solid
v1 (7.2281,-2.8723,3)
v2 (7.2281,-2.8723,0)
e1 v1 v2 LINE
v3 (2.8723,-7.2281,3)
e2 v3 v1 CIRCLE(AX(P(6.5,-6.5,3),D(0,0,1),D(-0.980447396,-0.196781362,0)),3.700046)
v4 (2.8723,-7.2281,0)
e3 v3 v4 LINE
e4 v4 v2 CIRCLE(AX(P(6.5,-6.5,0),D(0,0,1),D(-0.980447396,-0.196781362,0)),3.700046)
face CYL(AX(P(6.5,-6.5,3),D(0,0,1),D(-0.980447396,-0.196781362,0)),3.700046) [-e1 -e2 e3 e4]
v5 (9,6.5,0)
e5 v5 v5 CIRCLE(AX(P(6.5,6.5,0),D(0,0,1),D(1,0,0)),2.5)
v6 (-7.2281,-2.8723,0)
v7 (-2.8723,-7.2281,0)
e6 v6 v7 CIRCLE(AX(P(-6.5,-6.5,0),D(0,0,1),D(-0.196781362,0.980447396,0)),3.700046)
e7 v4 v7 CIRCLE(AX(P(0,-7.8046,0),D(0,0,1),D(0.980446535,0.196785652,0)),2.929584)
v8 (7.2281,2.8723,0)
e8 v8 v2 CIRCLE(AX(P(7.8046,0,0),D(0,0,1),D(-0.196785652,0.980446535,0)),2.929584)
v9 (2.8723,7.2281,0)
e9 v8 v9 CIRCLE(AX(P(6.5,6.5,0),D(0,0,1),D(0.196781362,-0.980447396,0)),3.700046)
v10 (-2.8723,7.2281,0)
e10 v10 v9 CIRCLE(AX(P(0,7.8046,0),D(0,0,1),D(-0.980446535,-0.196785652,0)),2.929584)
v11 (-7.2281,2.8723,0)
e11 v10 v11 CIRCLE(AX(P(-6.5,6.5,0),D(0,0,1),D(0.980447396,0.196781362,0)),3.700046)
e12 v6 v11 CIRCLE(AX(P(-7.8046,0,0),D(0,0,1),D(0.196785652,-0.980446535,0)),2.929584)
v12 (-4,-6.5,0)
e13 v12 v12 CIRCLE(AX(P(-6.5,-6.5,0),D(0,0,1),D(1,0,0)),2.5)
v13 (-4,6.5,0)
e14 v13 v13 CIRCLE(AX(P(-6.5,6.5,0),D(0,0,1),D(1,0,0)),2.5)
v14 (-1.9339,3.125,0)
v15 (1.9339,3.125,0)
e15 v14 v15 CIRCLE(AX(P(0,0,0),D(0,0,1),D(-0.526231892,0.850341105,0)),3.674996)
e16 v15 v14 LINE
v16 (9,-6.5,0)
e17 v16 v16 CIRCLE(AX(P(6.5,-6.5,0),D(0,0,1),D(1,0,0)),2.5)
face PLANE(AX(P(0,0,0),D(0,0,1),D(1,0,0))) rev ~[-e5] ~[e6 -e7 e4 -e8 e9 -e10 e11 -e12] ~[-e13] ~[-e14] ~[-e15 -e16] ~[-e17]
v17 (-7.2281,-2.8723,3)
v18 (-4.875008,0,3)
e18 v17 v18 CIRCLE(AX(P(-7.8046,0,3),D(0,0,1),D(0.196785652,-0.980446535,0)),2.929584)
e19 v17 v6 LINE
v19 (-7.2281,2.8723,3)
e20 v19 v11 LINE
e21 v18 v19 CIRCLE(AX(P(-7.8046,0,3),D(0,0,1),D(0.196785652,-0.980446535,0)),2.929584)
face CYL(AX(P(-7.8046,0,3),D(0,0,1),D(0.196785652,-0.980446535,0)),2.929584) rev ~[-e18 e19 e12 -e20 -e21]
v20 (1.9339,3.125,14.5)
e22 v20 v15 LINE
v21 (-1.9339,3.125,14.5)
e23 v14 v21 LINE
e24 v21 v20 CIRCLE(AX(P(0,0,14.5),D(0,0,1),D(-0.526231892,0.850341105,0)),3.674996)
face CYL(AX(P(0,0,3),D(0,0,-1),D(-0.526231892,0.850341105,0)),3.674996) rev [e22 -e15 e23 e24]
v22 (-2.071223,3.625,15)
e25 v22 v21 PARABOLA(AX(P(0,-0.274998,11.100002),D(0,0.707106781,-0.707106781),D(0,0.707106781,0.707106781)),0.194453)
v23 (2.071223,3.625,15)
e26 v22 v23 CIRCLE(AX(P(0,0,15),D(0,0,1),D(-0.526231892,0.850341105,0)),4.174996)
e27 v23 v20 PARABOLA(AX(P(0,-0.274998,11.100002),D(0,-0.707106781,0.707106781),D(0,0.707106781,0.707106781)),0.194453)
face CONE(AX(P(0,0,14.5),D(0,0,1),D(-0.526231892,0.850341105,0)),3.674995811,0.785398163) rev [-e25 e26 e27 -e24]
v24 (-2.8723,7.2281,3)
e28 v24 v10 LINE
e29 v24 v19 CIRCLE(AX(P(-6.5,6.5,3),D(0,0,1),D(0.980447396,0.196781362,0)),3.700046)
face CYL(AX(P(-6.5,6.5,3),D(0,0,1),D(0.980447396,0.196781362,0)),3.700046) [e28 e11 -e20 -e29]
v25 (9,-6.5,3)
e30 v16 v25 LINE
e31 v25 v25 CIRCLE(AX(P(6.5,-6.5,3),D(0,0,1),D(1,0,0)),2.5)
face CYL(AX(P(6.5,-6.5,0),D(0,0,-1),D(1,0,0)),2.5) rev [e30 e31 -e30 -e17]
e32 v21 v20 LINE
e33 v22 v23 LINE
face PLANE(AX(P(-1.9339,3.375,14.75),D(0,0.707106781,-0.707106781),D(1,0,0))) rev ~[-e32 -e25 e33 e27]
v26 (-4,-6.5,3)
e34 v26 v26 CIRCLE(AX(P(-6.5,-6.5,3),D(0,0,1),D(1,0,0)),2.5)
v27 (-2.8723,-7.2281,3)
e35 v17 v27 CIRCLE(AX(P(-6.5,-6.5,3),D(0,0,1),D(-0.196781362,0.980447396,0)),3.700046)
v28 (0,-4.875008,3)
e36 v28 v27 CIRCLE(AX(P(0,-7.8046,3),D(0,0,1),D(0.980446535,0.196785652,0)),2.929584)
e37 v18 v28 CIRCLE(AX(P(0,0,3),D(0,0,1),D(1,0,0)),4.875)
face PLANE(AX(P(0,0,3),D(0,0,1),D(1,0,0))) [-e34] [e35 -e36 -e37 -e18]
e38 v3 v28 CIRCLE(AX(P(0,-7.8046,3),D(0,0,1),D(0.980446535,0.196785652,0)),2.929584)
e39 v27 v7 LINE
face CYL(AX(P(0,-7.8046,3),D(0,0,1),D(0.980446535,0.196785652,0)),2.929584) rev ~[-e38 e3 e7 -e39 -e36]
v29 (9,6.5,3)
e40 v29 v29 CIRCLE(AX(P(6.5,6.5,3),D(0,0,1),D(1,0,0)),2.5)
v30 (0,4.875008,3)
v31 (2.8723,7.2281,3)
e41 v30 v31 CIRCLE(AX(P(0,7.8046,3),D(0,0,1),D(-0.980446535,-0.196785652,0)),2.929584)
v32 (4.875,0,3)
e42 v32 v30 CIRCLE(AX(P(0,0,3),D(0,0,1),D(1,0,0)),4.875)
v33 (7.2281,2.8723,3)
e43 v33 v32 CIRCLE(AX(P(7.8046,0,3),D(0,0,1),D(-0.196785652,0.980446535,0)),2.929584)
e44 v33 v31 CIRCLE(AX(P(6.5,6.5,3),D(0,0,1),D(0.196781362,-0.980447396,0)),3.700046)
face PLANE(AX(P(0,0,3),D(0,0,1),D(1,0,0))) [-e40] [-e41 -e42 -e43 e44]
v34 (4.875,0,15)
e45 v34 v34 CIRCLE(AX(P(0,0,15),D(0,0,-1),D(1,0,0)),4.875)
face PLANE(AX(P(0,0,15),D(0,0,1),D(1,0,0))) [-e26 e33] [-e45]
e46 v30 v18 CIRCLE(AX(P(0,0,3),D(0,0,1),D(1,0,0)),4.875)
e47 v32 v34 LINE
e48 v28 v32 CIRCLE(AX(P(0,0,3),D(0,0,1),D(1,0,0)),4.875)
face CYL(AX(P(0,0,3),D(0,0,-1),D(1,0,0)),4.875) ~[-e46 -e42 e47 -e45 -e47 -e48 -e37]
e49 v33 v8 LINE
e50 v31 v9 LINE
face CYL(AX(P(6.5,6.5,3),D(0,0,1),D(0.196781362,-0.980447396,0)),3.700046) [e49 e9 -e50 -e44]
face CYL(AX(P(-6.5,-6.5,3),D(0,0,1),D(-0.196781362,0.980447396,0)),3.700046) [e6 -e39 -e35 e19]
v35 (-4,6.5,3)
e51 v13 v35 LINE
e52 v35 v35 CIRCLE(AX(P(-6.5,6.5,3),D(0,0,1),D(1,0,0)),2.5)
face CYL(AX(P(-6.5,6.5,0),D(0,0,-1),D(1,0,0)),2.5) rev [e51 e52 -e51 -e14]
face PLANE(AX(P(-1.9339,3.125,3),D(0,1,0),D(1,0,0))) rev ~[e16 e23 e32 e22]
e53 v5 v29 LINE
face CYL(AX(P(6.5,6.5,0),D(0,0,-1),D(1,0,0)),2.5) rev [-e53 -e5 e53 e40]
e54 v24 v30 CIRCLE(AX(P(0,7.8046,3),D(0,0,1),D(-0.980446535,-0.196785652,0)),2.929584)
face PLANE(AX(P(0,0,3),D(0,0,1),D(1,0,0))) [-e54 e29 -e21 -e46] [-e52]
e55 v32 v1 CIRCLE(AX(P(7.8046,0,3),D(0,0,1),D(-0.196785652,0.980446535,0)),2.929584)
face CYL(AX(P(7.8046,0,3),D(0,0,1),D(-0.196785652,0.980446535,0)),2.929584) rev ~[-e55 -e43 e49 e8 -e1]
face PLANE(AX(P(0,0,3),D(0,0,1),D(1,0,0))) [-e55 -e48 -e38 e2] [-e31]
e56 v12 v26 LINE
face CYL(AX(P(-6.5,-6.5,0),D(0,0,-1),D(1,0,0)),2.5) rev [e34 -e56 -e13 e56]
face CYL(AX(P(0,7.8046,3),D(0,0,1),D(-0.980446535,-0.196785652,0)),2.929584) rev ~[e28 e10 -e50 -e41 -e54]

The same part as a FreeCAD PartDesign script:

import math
import FreeCAD as App
import Part
import Sketcher

V = App.Vector
Q = App.Units.Quantity


def edges_at(feature, points):
    """Names of the edges that pass closest to the given points."""
    edges = feature.Shape.Edges
    near = lambda p: min(range(len(edges)), key=lambda i: edges[i].distToShape(Part.Vertex(*p))[0])
    return sorted({f"Edge{near(p) + 1}" for p in points})


def add_polygon(sketch, points):
    """Adds a closed chain of lines whose ends are joined by coincident constraints."""
    first, n = sketch.GeometryCount, len(points)
    for a, b in zip(points, points[1:] + points[:1]):
        sketch.addGeometry(Part.LineSegment(App.Vector(*a, 0), App.Vector(*b, 0)), False)
    for i in range(n):
        sketch.addConstraint(Sketcher.Constraint("Coincident", first + i, 2, first + (i + 1) % n, 1))

doc = App.newDocument("Part")
body = doc.addObject("PartDesign::Body", "Body")

# Sketch on XY plane
sketch1 = doc.addObject("Sketcher::SketchObject", "Sketch")
body.addObject(sketch1)
sketch1.AttachmentSupport = (doc.XY_Plane, [""])
sketch1.MapMode = "FlatFace"
add_polygon(sketch1, [(12.5, 12.5), (-12.5, 12.5), (-12.5, -12.5), (12.5, -12.5)])  # lines 0-3
sketch1.addGeometry(Part.Circle(V(-6.5, -6.5, 0), V(0, 0, 1), 2.5), False)  # 4
sketch1.addGeometry(Part.Circle(V(6.5, -6.5, 0), V(0, 0, 1), 2.5), False)  # 5
sketch1.addGeometry(Part.LineSegment(V(-1.9, 3.1, 0), V(1.9, 3.1, 0)), False)  # 6
sketch1.addGeometry(Part.ArcOfCircle(Part.Circle(V(0, 0, 0), V(0, 0, 1), 3.7), math.radians(122), math.radians(418)), False)  # 7
sketch1.addGeometry(Part.Circle(V(-6.5, 6.5, 0), V(0, 0, 1), 2.5), False)  # 8
sketch1.addGeometry(Part.Circle(V(6.5, 6.5, 0), V(0, 0, 1), 2.5), False)  # 9
sketch1.addConstraint([
    Sketcher.Constraint("Coincident", 6, 1, 7, 1),
    Sketcher.Constraint("Coincident", 7, 2, 6, 2),
    Sketcher.Constraint("Horizontal", 0),
    Sketcher.Constraint("Vertical", 1),
    Sketcher.Constraint("Horizontal", 2),
    Sketcher.Constraint("Vertical", 3),
    Sketcher.Constraint("Horizontal", 6),
    Sketcher.Constraint("Coincident", 7, 3, -1, 1),
    Sketcher.Constraint("Equal", 4, 5),
    Sketcher.Constraint("Equal", 5, 8),
    Sketcher.Constraint("Equal", 8, 9),
    Sketcher.Constraint("Symmetric", 5, 3, 8, 3, -1, 1),
    Sketcher.Constraint("Symmetric", 4, 3, 9, 3, -1, 1),
    Sketcher.Constraint("Symmetric", 0, 2, 2, 2, -1, 1),
    Sketcher.Constraint("Symmetric", 4, 3, 5, 3, -2),
    Sketcher.Constraint("Equal", 2, 1),
    Sketcher.Constraint("Diameter", 4, Q("5 mm")),
    Sketcher.Constraint("DistanceX", 0, 2, 0, 1, Q("25 mm")),
    Sketcher.Constraint("DistanceX", 4, 3, 5, 3, Q("13 mm")),
    Sketcher.Constraint("DistanceY", 4, 3, 8, 3, Q("13 mm")),
    Sketcher.Constraint("Radius", 7, Q("3.675 mm")),
    Sketcher.Constraint("DistanceX", 6, 1, 6, 2, Q("3.8678 mm")),
])
pad1 = doc.addObject("PartDesign::Pad", "Pad")
body.addObject(pad1)
pad1.Profile = sketch1
pad1.Length = 3

# Sketch on XY plane
sketch2 = doc.addObject("Sketcher::SketchObject", "Sketch001")
body.addObject(sketch2)
sketch2.AttachmentSupport = (doc.XY_Plane, [""])
sketch2.MapMode = "FlatFace"
sketch2.AttachmentOffset = App.Placement(V(0, 0, 3), App.Rotation())
add_polygon(sketch2, [(12.5, -12.5), (12.5, 12.5), (-12.5, 12.5), (-12.5, -12.5)])  # lines 0-3
sketch2.addGeometry(Part.ArcOfCircle(Part.Circle(V(-6.5, 6.5, 0), V(0, 0, 1), 3.7), math.radians(11), math.radians(259)), False)  # 4
sketch2.addGeometry(Part.ArcOfCircle(Part.Circle(V(0, 7.8, 0), V(0, 0, 1), 2.9), math.radians(-169), math.radians(-11)), False)  # 5
sketch2.addGeometry(Part.ArcOfCircle(Part.Circle(V(6.5, 6.5, 0), V(0, 0, 1), 3.7), math.radians(-79), math.radians(169)), False)  # 6
sketch2.addGeometry(Part.ArcOfCircle(Part.Circle(V(7.8, 0, 0), V(0, 0, 1), 2.9), math.radians(101), math.radians(259)), False)  # 7
sketch2.addGeometry(Part.ArcOfCircle(Part.Circle(V(6.5, -6.5, 0), V(0, 0, 1), 3.7), math.radians(-169), math.radians(79)), False)  # 8
sketch2.addGeometry(Part.ArcOfCircle(Part.Circle(V(0, -7.8, 0), V(0, 0, 1), 2.9), math.radians(11), math.radians(169)), False)  # 9
sketch2.addGeometry(Part.ArcOfCircle(Part.Circle(V(-6.5, -6.5, 0), V(0, 0, 1), 3.7), math.radians(101), math.radians(349)), False)  # 10
sketch2.addGeometry(Part.ArcOfCircle(Part.Circle(V(-7.8, 0, 0), V(0, 0, 1), 2.9), math.radians(-79), math.radians(79)), False)  # 11
sketch2.addConstraint([
    Sketcher.Constraint("Tangent", 4, 1, 5, 1),
    Sketcher.Constraint("Tangent", 5, 2, 6, 2),
    Sketcher.Constraint("Tangent", 6, 1, 7, 1),
    Sketcher.Constraint("Tangent", 7, 2, 8, 2),
    Sketcher.Constraint("Tangent", 8, 1, 9, 1),
    Sketcher.Constraint("Tangent", 9, 2, 10, 2),
    Sketcher.Constraint("Tangent", 10, 1, 11, 1),
    Sketcher.Constraint("Tangent", 11, 2, 4, 2),
    Sketcher.Constraint("Vertical", 0),
    Sketcher.Constraint("Horizontal", 1),
    Sketcher.Constraint("Vertical", 2),
    Sketcher.Constraint("Horizontal", 3),
    Sketcher.Constraint("Equal", 4, 6),
    Sketcher.Constraint("Equal", 5, 7),
    Sketcher.Constraint("Equal", 6, 8),
    Sketcher.Constraint("Equal", 7, 9),
    Sketcher.Constraint("Equal", 8, 10),
    Sketcher.Constraint("Equal", 9, 11),
    Sketcher.Constraint("Symmetric", 4, 3, 8, 3, -1, 1),
    Sketcher.Constraint("Symmetric", 6, 3, 10, 3, -1, 1),
    Sketcher.Constraint("Symmetric", 0, 2, 2, 2, -1, 1),
    Sketcher.Constraint("Symmetric", 4, 3, 6, 3, -2),
    Sketcher.Constraint("Equal", 3, 0),
    Sketcher.Constraint("Radius", 4, Q("3.7 mm")),
    Sketcher.Constraint("DistanceX", 1, 2, 1, 1, Q("25 mm")),
    Sketcher.Constraint("DistanceX", 4, 3, 6, 3, Q("13 mm")),
    Sketcher.Constraint("DistanceY", 8, 3, 6, 3, Q("13 mm")),
    Sketcher.Constraint("Radius", 5, Q("2.9296 mm")),
])
pocket1 = doc.addObject("PartDesign::Pocket", "Pocket")
body.addObject(pocket1)
pocket1.Profile = sketch2
pocket1.Type = "ThroughAll"

# Sketch on XY plane
sketch3 = doc.addObject("Sketcher::SketchObject", "Sketch002")
body.addObject(sketch3)
sketch3.AttachmentSupport = (doc.XY_Plane, [""])
sketch3.MapMode = "FlatFace"
sketch3.AttachmentOffset = App.Placement(V(0, 0, 3), App.Rotation())
sketch3.addGeometry([
    Part.Circle(V(0, 0, 0), V(0, 0, 1), 4.9),
    Part.ArcOfCircle(Part.Circle(V(0, 0, 0), V(0, 0, 1), 3.7), math.radians(122), math.radians(418)),
    Part.LineSegment(V(-1.9, 3.1, 0), V(1.9, 3.1, 0)),
], False)
sketch3.addConstraint([
    Sketcher.Constraint("Coincident", 1, 1, 2, 1),
    Sketcher.Constraint("Coincident", 2, 2, 1, 2),
    Sketcher.Constraint("Horizontal", 2),
    Sketcher.Constraint("Coincident", 0, 3, -1, 1),
    Sketcher.Constraint("Coincident", 1, 3, -1, 1),
    Sketcher.Constraint("Diameter", 0, Q("9.75 mm")),
    Sketcher.Constraint("Radius", 1, Q("3.675 mm")),
    Sketcher.Constraint("DistanceX", 2, 1, 2, 2, Q("3.8678 mm")),
])
pad2 = doc.addObject("PartDesign::Pad", "Pad001")
body.addObject(pad2)
pad2.Profile = sketch3
pad2.Length = 12
doc.recompute()

chamfer = doc.addObject("PartDesign::Chamfer", "Chamfer")
body.addObject(chamfer)
chamfer.Base = (pad2, edges_at(pad2, [(0, 3.125, 15), (0, -3.675, 15)]))
chamfer.Size = 0.5

doc.recompute()
